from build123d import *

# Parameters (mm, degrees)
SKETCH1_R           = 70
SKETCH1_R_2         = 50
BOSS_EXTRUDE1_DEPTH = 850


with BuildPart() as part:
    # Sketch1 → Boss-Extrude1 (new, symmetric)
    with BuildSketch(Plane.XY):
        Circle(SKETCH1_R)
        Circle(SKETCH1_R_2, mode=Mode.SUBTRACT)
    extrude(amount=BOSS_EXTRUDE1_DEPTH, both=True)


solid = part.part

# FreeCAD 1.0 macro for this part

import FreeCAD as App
import Part
import Sketcher
from FreeCAD import Vector

doc = App.newDocument("Part")
body = doc.addObject("PartDesign::Body", "Body")

# Sketch on XY plane
sketch1 = body.newObject("Sketcher::SketchObject", "Sketch")
sketch1.AttachmentSupport = (doc.getObject("XY_Plane"), [""])
sketch1.MapMode = "FlatFace"
sketch1.addGeometry([
    Part.Circle(Vector(0, 0, 0), Vector(0, 0, 1), 70),
    Part.Circle(Vector(0, 0, 0), Vector(0, 0, 1), 50),
], False)
sketch1.addConstraint([
    Sketcher.Constraint("Coincident", 0, 3, -1, 1),
    Sketcher.Constraint("Coincident", 1, 3, -1, 1),
    Sketcher.Constraint("Diameter", 0, 140.0),
    Sketcher.Constraint("Diameter", 1, 100.0),
])
pad1 = body.newObject("PartDesign::Pad", "Pad")
pad1.Profile = sketch1
pad1.Length = 1700
pad1.Midplane = True

doc.recompute()
